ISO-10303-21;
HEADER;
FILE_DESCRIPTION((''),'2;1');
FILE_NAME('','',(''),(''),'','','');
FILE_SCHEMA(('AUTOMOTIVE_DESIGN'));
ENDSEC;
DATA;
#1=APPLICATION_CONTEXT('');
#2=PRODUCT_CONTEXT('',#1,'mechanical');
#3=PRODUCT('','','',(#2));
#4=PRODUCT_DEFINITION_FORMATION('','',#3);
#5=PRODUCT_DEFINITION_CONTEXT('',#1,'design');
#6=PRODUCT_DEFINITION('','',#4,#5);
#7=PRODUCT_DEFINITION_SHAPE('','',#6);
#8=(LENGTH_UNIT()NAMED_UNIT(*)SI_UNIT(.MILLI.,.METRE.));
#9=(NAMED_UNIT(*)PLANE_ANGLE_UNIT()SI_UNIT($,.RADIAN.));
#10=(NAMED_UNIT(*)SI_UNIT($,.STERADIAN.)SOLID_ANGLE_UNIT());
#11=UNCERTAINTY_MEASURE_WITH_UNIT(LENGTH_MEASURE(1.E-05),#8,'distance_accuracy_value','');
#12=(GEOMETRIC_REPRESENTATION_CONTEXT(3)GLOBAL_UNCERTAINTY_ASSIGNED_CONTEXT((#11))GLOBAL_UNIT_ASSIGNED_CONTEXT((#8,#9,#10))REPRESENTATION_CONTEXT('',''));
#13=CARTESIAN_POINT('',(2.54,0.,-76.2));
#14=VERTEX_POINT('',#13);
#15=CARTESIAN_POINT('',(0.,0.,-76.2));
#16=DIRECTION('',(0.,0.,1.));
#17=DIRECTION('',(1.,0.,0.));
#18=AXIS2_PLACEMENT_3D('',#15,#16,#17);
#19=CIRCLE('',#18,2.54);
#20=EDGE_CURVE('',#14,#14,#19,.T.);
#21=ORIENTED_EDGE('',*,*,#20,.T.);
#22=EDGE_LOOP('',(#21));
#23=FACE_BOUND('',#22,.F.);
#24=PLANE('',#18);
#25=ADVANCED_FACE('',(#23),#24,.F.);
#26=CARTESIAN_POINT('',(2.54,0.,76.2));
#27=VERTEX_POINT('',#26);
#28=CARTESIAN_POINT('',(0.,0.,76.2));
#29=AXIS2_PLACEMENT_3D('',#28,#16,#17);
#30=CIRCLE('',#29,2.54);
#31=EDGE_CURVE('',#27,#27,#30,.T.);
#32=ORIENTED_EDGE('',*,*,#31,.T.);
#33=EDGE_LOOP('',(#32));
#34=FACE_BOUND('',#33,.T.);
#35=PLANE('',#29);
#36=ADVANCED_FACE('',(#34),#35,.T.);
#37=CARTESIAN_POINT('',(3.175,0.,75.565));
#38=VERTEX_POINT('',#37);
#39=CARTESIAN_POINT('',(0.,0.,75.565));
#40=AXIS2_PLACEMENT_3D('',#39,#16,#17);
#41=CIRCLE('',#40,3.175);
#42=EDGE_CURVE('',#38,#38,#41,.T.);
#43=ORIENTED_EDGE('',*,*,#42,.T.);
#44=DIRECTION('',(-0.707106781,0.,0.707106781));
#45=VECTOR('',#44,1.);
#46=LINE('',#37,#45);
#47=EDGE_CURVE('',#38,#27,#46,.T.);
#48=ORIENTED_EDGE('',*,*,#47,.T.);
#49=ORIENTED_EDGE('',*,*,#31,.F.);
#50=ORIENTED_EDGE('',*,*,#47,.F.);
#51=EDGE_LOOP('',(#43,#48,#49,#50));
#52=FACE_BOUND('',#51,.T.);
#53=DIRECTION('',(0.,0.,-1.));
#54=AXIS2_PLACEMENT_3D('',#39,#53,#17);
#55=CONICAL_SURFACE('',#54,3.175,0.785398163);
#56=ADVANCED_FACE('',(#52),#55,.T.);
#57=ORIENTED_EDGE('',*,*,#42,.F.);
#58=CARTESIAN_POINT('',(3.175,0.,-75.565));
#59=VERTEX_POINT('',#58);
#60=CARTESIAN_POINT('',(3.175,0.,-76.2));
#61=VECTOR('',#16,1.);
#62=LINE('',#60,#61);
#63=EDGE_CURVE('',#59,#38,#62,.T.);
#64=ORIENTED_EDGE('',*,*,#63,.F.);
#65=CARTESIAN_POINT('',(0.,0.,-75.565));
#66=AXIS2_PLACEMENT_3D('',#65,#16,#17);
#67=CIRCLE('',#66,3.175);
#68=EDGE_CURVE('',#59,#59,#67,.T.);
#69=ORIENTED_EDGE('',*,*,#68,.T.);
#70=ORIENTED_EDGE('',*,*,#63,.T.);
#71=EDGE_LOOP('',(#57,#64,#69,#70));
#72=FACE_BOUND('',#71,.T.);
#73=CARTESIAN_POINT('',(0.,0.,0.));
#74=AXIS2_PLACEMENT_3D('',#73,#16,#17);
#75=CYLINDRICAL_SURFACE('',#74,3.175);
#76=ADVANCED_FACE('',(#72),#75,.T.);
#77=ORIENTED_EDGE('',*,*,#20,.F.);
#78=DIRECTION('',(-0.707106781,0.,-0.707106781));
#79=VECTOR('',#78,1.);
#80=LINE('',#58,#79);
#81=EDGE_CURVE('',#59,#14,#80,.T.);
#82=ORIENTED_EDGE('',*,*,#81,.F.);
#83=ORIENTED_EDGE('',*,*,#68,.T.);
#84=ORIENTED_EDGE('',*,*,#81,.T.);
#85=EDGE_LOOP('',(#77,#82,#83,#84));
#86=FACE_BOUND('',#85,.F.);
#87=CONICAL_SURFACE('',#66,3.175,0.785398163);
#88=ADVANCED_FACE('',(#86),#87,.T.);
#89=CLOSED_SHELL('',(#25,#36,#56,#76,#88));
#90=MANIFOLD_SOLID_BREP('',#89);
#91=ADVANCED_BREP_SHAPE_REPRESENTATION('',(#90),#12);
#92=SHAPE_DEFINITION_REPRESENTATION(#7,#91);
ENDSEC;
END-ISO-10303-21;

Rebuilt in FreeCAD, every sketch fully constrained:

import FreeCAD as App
import Part
import Sketcher
from FreeCAD import Vector
Q = App.Units.Quantity


def edges_at(feature, points):
    """Names of the edges that pass closest to the given points."""
    edges = feature.Shape.Edges
    near = lambda p: min(range(len(edges)), key=lambda i: edges[i].distToShape(Part.Vertex(*p))[0])
    return sorted({f"Edge{near(p) + 1}" for p in points})

doc = App.newDocument("Part")
body = doc.addObject("PartDesign::Body", "Body")

# Sketch on XY plane
sketch1 = body.newObject("Sketcher::SketchObject", "Sketch")
sketch1.AttachmentSupport = (doc.getObject("XY_Plane"), [""])
sketch1.MapMode = "FlatFace"
sketch1.addGeometry(Part.Circle(Vector(0, 0, 0), Vector(0, 0, 1), 3.2), False)
sketch1.addConstraint([
    Sketcher.Constraint("Coincident", 0, 3, -1, 1),
    Sketcher.Constraint("Diameter", 0, Q("0.25 in")),
])
pad1 = body.newObject("PartDesign::Pad", "Pad")
pad1.Profile = sketch1
pad1.Length = Q("6 in")
pad1.Midplane = True
doc.recompute()

chamfer = body.newObject("PartDesign::Chamfer", "Chamfer")
chamfer.Base = (pad1, edges_at(pad1, [(-3.175, 0, -76.2), (-3.175, 0, 76.2)]))
chamfer.Size = Q("0.025 in")

doc.recompute()
